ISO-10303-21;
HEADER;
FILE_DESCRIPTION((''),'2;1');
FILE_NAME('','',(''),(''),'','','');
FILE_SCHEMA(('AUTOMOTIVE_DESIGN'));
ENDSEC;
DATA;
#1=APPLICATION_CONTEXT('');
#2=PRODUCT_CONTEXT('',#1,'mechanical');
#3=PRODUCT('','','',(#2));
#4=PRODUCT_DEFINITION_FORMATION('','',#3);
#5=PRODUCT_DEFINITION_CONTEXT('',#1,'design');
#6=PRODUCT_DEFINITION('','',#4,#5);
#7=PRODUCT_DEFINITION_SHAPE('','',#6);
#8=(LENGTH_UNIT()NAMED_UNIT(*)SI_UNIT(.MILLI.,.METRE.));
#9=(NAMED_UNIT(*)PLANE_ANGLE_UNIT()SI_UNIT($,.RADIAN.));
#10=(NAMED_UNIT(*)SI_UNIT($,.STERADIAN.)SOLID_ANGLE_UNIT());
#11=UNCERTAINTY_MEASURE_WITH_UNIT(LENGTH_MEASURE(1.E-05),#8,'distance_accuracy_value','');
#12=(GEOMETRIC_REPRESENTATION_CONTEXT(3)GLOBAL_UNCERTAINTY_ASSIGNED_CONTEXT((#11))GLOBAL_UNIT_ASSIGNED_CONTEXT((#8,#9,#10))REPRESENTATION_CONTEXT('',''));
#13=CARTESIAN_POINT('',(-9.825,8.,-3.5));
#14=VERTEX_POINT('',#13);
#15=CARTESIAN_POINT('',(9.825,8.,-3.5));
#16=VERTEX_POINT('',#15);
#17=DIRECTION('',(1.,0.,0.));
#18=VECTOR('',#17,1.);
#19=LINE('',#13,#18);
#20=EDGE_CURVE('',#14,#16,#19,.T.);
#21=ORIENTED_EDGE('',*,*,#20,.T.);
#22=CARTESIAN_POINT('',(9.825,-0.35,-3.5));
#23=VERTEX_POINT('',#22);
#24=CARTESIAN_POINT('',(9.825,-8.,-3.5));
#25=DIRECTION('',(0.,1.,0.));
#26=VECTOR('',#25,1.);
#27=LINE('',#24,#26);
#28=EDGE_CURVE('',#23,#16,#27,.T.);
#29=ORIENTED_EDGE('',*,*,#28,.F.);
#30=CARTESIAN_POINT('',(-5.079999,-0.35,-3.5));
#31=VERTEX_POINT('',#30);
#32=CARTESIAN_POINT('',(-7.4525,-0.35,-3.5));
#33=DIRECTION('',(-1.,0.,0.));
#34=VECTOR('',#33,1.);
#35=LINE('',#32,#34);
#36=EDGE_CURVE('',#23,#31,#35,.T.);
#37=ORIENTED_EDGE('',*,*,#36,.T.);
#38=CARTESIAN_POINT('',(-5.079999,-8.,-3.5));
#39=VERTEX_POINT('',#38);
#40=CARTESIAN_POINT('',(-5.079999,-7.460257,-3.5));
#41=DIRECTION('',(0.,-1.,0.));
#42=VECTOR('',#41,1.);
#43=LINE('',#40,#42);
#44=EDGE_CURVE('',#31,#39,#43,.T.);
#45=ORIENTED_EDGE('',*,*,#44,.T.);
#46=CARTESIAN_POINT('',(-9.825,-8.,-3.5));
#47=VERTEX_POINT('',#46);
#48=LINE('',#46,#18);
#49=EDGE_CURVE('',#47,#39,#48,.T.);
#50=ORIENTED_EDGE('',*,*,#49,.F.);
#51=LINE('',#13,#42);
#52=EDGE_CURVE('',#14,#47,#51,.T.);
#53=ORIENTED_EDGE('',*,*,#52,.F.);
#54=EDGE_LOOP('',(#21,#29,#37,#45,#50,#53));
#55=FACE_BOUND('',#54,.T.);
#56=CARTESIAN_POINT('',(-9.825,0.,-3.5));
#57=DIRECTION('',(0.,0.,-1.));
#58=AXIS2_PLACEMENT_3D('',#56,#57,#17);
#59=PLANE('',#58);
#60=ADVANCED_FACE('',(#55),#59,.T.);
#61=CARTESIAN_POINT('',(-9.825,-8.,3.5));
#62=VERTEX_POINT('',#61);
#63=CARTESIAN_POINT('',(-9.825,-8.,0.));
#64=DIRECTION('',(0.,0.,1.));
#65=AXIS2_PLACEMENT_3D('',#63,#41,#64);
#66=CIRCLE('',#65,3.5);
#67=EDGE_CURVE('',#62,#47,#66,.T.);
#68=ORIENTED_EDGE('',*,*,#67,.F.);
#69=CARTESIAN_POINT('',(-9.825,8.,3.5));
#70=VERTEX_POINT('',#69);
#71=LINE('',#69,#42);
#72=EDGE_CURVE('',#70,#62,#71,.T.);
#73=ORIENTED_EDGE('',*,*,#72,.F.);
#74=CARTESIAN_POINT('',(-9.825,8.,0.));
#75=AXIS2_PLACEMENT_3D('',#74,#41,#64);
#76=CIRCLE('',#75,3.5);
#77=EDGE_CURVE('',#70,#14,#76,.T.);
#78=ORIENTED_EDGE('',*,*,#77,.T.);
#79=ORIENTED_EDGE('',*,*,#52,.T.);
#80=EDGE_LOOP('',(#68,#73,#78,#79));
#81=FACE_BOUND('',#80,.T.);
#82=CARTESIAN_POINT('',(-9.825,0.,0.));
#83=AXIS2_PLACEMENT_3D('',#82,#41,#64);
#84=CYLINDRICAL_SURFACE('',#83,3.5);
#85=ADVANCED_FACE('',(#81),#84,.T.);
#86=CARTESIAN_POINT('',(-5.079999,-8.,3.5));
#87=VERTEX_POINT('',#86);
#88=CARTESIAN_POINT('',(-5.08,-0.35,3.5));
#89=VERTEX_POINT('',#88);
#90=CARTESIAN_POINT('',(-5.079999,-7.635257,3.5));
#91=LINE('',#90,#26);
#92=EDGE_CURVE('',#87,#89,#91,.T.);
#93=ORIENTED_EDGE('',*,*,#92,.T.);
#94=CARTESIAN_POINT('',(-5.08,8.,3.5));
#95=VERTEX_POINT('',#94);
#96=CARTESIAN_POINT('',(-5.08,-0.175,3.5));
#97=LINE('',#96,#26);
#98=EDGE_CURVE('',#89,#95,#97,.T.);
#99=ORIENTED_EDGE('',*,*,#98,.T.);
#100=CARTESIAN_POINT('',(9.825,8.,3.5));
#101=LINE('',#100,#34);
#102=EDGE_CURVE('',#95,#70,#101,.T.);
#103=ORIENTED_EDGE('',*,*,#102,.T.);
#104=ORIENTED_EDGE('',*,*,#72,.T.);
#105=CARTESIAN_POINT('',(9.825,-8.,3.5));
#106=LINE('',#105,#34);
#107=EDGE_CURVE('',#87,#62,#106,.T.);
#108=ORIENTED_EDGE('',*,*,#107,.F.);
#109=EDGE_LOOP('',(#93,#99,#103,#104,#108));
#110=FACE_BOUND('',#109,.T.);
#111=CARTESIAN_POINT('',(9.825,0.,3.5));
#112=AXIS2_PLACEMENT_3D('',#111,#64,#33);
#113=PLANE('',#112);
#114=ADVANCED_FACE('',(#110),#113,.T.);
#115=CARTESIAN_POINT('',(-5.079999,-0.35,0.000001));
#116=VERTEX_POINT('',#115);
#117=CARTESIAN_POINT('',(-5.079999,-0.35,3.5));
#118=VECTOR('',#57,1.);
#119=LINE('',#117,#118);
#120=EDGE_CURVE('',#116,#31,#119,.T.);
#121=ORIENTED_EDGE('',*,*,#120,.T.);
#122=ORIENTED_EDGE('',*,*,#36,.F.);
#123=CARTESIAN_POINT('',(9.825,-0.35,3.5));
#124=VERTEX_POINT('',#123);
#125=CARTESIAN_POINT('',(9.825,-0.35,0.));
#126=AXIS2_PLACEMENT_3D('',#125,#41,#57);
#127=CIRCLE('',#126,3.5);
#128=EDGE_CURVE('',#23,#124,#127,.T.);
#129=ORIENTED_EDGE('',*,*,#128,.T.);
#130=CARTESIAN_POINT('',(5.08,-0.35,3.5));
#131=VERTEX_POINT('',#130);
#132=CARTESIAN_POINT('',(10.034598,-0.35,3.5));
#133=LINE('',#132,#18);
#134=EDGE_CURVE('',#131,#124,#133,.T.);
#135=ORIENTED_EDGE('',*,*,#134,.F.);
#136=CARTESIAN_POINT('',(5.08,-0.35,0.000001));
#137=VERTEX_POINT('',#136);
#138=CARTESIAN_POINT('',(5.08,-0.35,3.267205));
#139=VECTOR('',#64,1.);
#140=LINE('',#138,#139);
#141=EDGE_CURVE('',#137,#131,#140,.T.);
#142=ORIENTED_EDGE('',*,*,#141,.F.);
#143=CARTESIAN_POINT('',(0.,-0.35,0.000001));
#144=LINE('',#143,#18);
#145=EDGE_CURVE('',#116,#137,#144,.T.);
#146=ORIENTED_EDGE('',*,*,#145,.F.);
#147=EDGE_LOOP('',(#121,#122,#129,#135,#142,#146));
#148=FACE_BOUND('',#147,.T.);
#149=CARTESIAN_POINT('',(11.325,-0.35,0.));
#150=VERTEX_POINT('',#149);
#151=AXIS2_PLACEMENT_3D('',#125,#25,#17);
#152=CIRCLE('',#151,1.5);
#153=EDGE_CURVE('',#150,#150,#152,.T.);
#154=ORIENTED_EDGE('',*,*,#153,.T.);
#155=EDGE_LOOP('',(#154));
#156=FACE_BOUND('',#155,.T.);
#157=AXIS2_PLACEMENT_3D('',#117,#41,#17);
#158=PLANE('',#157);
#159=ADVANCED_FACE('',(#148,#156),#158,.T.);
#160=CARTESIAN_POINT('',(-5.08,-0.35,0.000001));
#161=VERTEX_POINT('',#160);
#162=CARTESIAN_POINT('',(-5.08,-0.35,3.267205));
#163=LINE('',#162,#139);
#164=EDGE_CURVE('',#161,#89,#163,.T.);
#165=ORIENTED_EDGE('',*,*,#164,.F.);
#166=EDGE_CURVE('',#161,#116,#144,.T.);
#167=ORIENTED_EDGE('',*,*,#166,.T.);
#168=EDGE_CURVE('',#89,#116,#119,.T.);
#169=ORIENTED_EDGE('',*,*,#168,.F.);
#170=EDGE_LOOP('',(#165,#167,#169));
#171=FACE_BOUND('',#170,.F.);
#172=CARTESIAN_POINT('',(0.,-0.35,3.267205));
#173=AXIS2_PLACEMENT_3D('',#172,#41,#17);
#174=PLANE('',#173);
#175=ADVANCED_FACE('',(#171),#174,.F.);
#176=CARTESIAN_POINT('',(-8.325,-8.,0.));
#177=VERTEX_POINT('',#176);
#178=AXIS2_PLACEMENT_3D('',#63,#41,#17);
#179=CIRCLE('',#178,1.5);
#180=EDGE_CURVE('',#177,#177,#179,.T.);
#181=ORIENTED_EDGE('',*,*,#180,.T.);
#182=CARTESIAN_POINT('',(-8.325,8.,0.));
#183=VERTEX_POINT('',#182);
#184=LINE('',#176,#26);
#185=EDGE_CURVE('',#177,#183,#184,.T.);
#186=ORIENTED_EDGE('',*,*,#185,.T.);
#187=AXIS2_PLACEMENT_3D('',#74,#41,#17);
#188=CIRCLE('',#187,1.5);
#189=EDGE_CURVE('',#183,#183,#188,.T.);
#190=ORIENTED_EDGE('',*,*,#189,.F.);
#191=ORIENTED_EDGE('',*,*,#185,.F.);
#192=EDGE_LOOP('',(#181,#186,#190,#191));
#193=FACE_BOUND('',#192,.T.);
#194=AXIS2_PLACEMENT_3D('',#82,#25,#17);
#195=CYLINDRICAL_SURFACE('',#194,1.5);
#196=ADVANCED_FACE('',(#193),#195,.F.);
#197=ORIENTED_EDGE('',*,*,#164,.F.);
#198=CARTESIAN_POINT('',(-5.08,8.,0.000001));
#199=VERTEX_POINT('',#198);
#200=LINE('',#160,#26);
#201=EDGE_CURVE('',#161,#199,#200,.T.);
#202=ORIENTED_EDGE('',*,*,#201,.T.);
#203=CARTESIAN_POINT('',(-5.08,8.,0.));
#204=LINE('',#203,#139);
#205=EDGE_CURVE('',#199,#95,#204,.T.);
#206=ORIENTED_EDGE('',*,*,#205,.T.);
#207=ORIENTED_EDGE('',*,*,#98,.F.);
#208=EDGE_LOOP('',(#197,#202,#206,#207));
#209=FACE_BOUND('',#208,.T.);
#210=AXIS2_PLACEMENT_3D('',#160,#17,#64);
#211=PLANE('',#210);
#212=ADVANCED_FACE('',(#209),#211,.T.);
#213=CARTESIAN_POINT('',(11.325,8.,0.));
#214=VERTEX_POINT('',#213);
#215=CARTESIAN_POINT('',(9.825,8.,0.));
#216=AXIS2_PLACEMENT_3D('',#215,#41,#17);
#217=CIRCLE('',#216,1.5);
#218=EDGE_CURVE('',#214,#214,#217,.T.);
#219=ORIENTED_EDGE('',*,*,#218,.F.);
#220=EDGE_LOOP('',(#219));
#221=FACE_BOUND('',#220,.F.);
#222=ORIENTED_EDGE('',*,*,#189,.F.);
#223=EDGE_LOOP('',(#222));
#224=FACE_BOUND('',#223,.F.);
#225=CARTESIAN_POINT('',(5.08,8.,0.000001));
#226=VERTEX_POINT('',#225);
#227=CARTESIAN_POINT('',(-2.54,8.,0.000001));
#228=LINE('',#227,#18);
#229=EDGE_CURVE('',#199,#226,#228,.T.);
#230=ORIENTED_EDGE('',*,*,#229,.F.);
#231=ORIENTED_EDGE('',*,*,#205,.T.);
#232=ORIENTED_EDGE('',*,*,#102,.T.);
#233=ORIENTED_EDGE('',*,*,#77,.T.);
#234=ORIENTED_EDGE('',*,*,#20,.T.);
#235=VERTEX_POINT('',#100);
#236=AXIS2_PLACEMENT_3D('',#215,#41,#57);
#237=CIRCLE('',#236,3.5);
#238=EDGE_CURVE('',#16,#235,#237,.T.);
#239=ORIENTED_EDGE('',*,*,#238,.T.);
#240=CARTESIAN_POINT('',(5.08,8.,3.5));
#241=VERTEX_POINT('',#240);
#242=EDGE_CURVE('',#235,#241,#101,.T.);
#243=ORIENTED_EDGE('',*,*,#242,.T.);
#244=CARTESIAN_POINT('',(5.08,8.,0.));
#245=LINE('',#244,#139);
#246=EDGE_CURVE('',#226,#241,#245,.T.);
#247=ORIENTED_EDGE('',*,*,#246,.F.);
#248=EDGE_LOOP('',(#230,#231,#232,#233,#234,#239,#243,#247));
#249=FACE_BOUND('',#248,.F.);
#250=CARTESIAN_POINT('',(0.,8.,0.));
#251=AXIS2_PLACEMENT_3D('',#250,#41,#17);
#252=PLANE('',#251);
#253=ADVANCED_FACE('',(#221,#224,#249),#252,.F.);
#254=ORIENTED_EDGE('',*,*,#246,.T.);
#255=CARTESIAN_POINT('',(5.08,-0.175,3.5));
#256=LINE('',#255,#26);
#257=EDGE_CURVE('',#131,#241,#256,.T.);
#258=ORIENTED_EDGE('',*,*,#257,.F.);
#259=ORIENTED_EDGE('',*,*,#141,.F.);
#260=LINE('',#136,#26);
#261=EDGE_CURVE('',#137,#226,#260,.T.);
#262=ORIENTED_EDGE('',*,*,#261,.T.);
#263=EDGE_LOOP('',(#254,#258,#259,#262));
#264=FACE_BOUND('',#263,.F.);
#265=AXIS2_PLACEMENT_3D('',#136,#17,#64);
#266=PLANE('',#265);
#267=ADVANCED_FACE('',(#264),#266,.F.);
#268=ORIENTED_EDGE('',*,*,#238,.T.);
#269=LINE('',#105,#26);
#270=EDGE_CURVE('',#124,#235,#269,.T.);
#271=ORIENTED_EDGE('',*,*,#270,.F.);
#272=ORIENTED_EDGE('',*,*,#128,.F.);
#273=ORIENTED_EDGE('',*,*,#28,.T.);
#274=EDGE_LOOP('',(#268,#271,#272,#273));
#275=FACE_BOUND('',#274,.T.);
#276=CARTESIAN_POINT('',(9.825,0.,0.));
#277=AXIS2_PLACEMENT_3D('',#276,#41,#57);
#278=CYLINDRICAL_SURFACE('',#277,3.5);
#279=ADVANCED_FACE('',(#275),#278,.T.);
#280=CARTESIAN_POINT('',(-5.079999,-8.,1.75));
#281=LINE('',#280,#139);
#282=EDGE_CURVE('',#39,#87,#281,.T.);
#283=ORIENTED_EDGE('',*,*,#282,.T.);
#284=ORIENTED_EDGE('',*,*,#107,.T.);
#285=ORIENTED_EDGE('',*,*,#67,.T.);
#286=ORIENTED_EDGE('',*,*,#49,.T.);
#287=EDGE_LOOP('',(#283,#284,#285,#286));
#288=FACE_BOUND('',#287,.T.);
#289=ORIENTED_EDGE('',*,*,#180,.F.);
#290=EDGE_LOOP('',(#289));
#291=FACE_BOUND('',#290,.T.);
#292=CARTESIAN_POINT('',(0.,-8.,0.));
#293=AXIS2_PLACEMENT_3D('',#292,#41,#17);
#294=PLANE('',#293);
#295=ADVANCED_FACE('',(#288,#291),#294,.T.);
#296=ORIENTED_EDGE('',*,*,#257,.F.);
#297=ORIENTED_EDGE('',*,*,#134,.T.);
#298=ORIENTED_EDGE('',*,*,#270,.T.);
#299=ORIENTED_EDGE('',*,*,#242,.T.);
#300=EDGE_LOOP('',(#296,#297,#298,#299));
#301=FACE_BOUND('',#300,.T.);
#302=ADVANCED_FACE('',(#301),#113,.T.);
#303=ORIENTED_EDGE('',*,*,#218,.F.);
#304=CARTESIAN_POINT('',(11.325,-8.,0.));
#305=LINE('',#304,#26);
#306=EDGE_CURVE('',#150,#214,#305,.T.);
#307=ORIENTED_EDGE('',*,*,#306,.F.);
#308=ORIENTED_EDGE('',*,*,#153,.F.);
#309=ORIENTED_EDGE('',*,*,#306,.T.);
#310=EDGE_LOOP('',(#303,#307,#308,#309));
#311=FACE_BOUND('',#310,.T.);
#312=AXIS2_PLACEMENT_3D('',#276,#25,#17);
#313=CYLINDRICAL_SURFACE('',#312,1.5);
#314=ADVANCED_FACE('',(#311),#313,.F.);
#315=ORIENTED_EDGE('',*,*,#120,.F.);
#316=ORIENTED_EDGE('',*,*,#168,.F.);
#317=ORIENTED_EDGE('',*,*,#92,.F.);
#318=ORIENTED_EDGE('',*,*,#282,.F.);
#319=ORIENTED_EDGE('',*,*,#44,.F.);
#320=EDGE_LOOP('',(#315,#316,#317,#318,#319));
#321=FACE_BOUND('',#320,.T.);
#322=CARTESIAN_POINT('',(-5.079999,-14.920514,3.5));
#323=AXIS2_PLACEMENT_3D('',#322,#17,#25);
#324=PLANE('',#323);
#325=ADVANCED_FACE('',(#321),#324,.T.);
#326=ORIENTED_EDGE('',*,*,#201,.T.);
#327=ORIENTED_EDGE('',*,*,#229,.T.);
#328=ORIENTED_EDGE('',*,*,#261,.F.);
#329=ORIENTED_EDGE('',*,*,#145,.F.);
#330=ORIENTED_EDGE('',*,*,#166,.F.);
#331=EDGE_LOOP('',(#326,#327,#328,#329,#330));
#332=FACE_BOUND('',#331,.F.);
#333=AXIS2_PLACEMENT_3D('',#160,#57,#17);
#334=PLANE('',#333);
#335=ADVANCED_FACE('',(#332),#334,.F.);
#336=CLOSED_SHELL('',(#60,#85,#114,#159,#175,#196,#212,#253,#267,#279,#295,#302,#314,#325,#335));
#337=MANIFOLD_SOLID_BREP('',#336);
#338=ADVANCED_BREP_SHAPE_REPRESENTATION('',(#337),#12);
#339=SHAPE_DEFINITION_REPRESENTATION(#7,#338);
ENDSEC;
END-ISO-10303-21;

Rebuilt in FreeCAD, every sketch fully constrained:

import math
import FreeCAD as App
import Part
import Sketcher
from FreeCAD import Vector
Q = App.Units.Quantity


def add_polygon(sketch, points):
    """Adds a closed chain of lines whose ends are joined by coincident constraints."""
    first, n = sketch.GeometryCount, len(points)
    for a, b in zip(points, points[1:] + points[:1]):
        sketch.addGeometry(Part.LineSegment(App.Vector(*a, 0), App.Vector(*b, 0)), False)
    for i in range(n):
        sketch.addConstraint(Sketcher.Constraint("Coincident", first + i, 2, first + (i + 1) % n, 1))

doc = App.newDocument("Part")
body = doc.addObject("PartDesign::Body", "Body")

sketch1 = body.newObject("Sketcher::SketchObject", "Sketch")
sketch1.AttachmentSupport = (doc.getObject("XZ_Plane"), [""])
sketch1.MapMode = "FlatFace"
sketch1.addGeometry([
    Part.LineSegment(Vector(9.825, 3.5, 0), Vector(-9.825, 3.5, 0)),
    Part.ArcOfCircle(Part.Circle(Vector(-9.825, 0, 0), Vector(0, 0, 1), 3.5), math.radians(90), math.radians(270)),
    Part.LineSegment(Vector(-9.825, -3.5, 0), Vector(9.825, -3.5, 0)),
    Part.ArcOfCircle(Part.Circle(Vector(9.825, 0, 0), Vector(0, 0, 1), 3.5), math.radians(-90), math.radians(90)),
    Part.Circle(Vector(-9.825, 0, 0), Vector(0, 0, 1), 1.5),
    Part.Circle(Vector(9.825, 0, 0), Vector(0, 0, 1), 1.5),
], False)
sketch1.addConstraint([
    Sketcher.Constraint("Tangent", 0, 2, 1, 1),
    Sketcher.Constraint("Tangent", 1, 2, 2, 1),
    Sketcher.Constraint("Tangent", 2, 2, 3, 1),
    Sketcher.Constraint("Tangent", 3, 2, 0, 1),
    Sketcher.Constraint("Horizontal", 0),
    Sketcher.Constraint("Horizontal", 2),
    Sketcher.Constraint("Coincident", 4, 3, 1, 3),
    Sketcher.Constraint("Coincident", 5, 3, 3, 3),
    Sketcher.Constraint("Equal", 4, 5),
    Sketcher.Constraint("Symmetric", 1, 3, 3, 3, -1, 1),
    Sketcher.Constraint("Diameter", 4, Q("3 mm")),
    Sketcher.Constraint("Radius", 1, Q("3.5 mm")),
    Sketcher.Constraint("DistanceX", 0, 2, 0, 1, Q("19.65 mm")),
])
pad1 = body.newObject("PartDesign::Pad", "Pad")
pad1.Profile = sketch1
pad1.Length = 16
pad1.Midplane = True

sketch2 = body.newObject("Sketcher::SketchObject", "Sketch001")
sketch2.AttachmentSupport = (doc.getObject("XY_Plane"), [""])
sketch2.MapMode = "FlatFace"
sketch2.AttachmentOffset = App.Placement(Vector(0, 0, 3.5), App.Rotation())
add_polygon(sketch2, [(-5.079999, -0.35), (-5.079999, -14.920514), (25.149196, -14.920514), (25.149196, -0.35)])
sketch2.addConstraint([
    Sketcher.Constraint("Vertical", 0),
    Sketcher.Constraint("Horizontal", 1),
    Sketcher.Constraint("Vertical", 2),
    Sketcher.Constraint("Horizontal", 3),
    Sketcher.Constraint("DistanceX", 0, 2, -1, 1, Q("5.079999 mm")),
    Sketcher.Constraint("DistanceY", 2, 2, -1, 1, Q("0.35 mm")),
    Sketcher.Constraint("DistanceX", 1, 1, 1, 2, Q("30.229195 mm")),
    Sketcher.Constraint("DistanceY", 0, 2, 0, 1, Q("14.570514 mm")),
])
pocket1 = body.newObject("PartDesign::Pocket", "Pocket")
pocket1.Profile = sketch2
pocket1.Length = 25.4

sketch3 = body.newObject("Sketcher::SketchObject", "Sketch002")
sketch3.AttachmentSupport = (doc.getObject("XZ_Plane"), [""])
sketch3.MapMode = "FlatFace"
sketch3.AttachmentOffset = App.Placement(Vector(0, 0, 0.35), App.Rotation())
add_polygon(sketch3, [(-5.08, 6.534409), (-5.08, 0), (5.08, 0), (5.08, 6.534409)])
sketch3.addConstraint([
    Sketcher.Constraint("Vertical", 0),
    Sketcher.Constraint("Horizontal", 1),
    Sketcher.Constraint("Vertical", 2),
    Sketcher.Constraint("Horizontal", 3),
    Sketcher.Constraint("Symmetric", 0, 2, 1, 2, -1, 1),
    Sketcher.Constraint("DistanceX", 1, 1, 1, 2, Q("10.16 mm")),
    Sketcher.Constraint("DistanceY", 0, 2, 0, 1, Q("6.534409 mm")),
])
pocket2 = body.newObject("PartDesign::Pocket", "Pocket001")
pocket2.Profile = sketch3
pocket2.Length = 25.4

doc.recompute()
